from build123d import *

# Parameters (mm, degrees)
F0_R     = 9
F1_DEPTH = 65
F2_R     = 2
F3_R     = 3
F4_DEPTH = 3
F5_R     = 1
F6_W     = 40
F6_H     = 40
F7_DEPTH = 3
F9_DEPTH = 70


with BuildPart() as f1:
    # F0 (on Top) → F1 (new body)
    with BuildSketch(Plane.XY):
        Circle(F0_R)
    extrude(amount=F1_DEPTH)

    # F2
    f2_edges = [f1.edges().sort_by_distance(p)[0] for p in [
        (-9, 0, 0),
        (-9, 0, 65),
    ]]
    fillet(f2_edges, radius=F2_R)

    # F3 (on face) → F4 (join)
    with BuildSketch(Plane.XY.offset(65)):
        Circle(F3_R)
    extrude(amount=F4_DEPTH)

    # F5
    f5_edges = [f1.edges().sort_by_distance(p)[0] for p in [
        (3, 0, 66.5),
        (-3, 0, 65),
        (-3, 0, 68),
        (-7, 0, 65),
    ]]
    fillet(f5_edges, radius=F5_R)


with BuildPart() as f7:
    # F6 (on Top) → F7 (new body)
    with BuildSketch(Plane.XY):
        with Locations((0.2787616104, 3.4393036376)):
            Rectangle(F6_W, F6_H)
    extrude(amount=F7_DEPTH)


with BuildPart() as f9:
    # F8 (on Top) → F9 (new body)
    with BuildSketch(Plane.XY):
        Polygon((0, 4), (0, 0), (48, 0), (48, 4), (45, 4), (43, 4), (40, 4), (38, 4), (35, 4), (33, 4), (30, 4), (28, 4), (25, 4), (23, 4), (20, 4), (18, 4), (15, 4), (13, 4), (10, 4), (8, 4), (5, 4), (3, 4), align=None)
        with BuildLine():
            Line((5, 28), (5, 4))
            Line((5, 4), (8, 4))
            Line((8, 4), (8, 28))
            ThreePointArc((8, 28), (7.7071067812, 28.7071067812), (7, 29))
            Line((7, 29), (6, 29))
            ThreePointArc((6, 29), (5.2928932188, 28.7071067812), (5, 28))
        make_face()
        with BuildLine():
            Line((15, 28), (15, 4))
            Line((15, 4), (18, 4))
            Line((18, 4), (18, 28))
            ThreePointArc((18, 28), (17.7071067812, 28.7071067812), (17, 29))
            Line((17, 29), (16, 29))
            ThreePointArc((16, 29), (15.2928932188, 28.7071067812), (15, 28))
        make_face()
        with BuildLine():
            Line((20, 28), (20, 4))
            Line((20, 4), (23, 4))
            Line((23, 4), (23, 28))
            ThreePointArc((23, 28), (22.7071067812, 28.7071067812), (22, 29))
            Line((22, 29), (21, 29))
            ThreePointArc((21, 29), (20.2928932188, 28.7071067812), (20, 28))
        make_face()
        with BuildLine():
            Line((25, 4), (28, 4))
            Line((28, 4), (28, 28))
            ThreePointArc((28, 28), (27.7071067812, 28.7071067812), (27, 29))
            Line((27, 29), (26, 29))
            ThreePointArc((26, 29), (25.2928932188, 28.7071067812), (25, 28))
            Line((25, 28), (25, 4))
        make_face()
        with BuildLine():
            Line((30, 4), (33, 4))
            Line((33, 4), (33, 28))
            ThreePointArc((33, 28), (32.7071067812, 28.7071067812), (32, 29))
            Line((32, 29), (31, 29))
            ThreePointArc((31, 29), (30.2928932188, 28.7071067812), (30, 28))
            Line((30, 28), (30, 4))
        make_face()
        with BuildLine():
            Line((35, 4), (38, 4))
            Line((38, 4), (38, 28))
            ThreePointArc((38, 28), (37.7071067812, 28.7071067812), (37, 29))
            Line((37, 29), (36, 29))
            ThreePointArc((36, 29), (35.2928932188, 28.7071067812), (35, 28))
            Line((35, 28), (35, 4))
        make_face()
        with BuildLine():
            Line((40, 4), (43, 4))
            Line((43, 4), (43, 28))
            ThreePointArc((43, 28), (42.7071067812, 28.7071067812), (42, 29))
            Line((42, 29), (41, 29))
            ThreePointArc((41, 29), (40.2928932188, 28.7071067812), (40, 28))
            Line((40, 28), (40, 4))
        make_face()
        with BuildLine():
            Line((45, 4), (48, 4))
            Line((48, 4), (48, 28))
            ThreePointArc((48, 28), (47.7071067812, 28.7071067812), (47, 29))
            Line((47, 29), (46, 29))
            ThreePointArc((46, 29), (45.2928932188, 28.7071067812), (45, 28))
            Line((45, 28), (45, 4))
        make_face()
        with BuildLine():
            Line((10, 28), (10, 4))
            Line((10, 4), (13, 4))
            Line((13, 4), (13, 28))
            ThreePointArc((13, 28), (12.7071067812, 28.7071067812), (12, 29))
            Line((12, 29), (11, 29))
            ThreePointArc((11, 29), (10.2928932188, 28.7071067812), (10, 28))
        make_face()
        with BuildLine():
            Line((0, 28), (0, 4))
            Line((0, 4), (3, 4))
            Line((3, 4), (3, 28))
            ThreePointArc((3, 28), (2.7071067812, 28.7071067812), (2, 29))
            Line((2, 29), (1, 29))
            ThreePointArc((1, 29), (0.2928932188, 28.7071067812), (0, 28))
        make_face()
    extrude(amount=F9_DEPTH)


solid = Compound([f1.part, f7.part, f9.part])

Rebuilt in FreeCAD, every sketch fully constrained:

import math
import FreeCAD as App
import Part
import Sketcher

V = App.Vector
Q = App.Units.Quantity


def edges_at(feature, points):
    """Names of the edges that pass closest to the given points."""
    edges = feature.Shape.Edges
    near = lambda p: min(range(len(edges)), key=lambda i: edges[i].distToShape(Part.Vertex(*p))[0])
    return sorted({f"Edge{near(p) + 1}" for p in points})

doc = App.newDocument("Part")
body = doc.addObject("PartDesign::Body", "Body")

# Sketch on XY plane
sketch1 = body.newObject("Sketcher::SketchObject", "Sketch")
sketch1.AttachmentSupport = (doc.getObject("XY_Plane"), [""])
sketch1.MapMode = "FlatFace"
sketch1.addGeometry(Part.Circle(V(0, 0, 0), V(0, 0, 1), 9), False)
sketch1.addConstraint(Sketcher.Constraint("Coincident", 0, 3, -1, 1))
sketch1.addConstraint(Sketcher.Constraint("Diameter", 0, Q("18 mm")))
pad1 = body.newObject("PartDesign::Pad", "Pad")
pad1.Profile = sketch1
pad1.Length = 65
doc.recompute()

fillet = body.newObject("PartDesign::Fillet", "Fillet")
fillet.Base = (pad1, edges_at(pad1, [(-9, 0, 0), (-9, 0, 65)]))
fillet.Radius = 2

# Sketch on XY plane
sketch2 = body.newObject("Sketcher::SketchObject", "Sketch001")
sketch2.AttachmentSupport = (doc.getObject("XY_Plane"), [""])
sketch2.MapMode = "FlatFace"
sketch2.AttachmentOffset = App.Placement(V(0, 0, 65), App.Rotation())
sketch2.addGeometry(Part.Circle(V(0, 0, 0), V(0, 0, 1), 3), False)
sketch2.addConstraint(Sketcher.Constraint("Coincident", 0, 3, -1, 1))
sketch2.addConstraint(Sketcher.Constraint("Diameter", 0, Q("6 mm")))
pad2 = body.newObject("PartDesign::Pad", "Pad001")
pad2.Profile = sketch2
pad2.Length = 3
doc.recompute()

fillet2 = body.newObject("PartDesign::Fillet", "Fillet001")
fillet2.Base = (pad2, edges_at(pad2, [
    (3, 0, 66.5),
    (-3, 0, 65),
    (-3, 0, 68),
    (-7, 0, 65),
]))
fillet2.Radius = 1
body2 = doc.addObject("PartDesign::Body", "Body001")

# Sketch on XY plane
sketch3 = body2.newObject("Sketcher::SketchObject", "Sketch002")
sketch3.AttachmentSupport = (doc.getObject("XY_Plane001"), [""])
sketch3.MapMode = "FlatFace"
sketch3.addGeometry(Part.LineSegment(V(-19.721238, 23.439304, 0), V(-19.721238, -16.560696, 0)), False)
sketch3.addGeometry(Part.LineSegment(V(-19.721238, -16.560696, 0), V(20.278762, -16.560696, 0)), False)
sketch3.addGeometry(Part.LineSegment(V(20.278762, -16.560696, 0), V(20.278762, 23.439304, 0)), False)
sketch3.addGeometry(Part.LineSegment(V(20.278762, 23.439304, 0), V(-19.721238, 23.439304, 0)), False)
sketch3.addConstraint(Sketcher.Constraint("Coincident", 0, 2, 1, 1))
sketch3.addConstraint(Sketcher.Constraint("Coincident", 1, 2, 2, 1))
sketch3.addConstraint(Sketcher.Constraint("Coincident", 2, 2, 3, 1))
sketch3.addConstraint(Sketcher.Constraint("Coincident", 3, 2, 0, 1))
sketch3.addConstraint(Sketcher.Constraint("Vertical", 0))
sketch3.addConstraint(Sketcher.Constraint("Horizontal", 1))
sketch3.addConstraint(Sketcher.Constraint("Vertical", 2))
sketch3.addConstraint(Sketcher.Constraint("Horizontal", 3))
sketch3.addConstraint(Sketcher.Constraint("Equal", 3, 0))
sketch3.addConstraint(Sketcher.Constraint("DistanceX", 1, 1, 1, 2, Q("40 mm")))
sketch3.addConstraint(Sketcher.Constraint("DistanceX", 0, 2, -1, 1, Q("19.721238 mm")))
sketch3.addConstraint(Sketcher.Constraint("DistanceY", 0, 2, -1, 1, Q("16.560696 mm")))
pad3 = body2.newObject("PartDesign::Pad", "Pad002")
pad3.Profile = sketch3
pad3.Length = 3
body3 = doc.addObject("PartDesign::Body", "Body002")

# Sketch on XY plane
sketch4 = body3.newObject("Sketcher::SketchObject", "Sketch003")
sketch4.AttachmentSupport = (doc.getObject("XY_Plane002"), [""])
sketch4.MapMode = "FlatFace"
sketch4.addGeometry(Part.LineSegment(V(0, 0, 0), V(48, 0, 0)), False)
sketch4.addGeometry(Part.LineSegment(V(48, 0, 0), V(48, 28, 0)), False)
sketch4.addGeometry(Part.ArcOfCircle(Part.Circle(V(47, 28, 0), V(0, 0, 1), 1), math.radians(0), math.radians(90)), False)
sketch4.addGeometry(Part.LineSegment(V(47, 29, 0), V(46, 29, 0)), False)
sketch4.addGeometry(Part.ArcOfCircle(Part.Circle(V(46, 28, 0), V(0, 0, 1), 1), math.radians(90), math.radians(180)), False)
sketch4.addGeometry(Part.LineSegment(V(45, 28, 0), V(45, 4, 0)), False)
sketch4.addGeometry(Part.LineSegment(V(45, 4, 0), V(43, 4, 0)), False)
sketch4.addGeometry(Part.LineSegment(V(43, 4, 0), V(43, 28, 0)), False)
sketch4.addGeometry(Part.ArcOfCircle(Part.Circle(V(42, 28, 0), V(0, 0, 1), 1), math.radians(0), math.radians(90)), False)
sketch4.addGeometry(Part.LineSegment(V(42, 29, 0), V(41, 29, 0)), False)
sketch4.addGeometry(Part.ArcOfCircle(Part.Circle(V(41, 28, 0), V(0, 0, 1), 1), math.radians(90), math.radians(180)), False)
sketch4.addGeometry(Part.LineSegment(V(40, 28, 0), V(40, 4, 0)), False)
sketch4.addGeometry(Part.LineSegment(V(40, 4, 0), V(38, 4, 0)), False)
sketch4.addGeometry(Part.LineSegment(V(38, 4, 0), V(38, 28, 0)), False)
sketch4.addGeometry(Part.ArcOfCircle(Part.Circle(V(37, 28, 0), V(0, 0, 1), 1), math.radians(0), math.radians(90)), False)
sketch4.addGeometry(Part.LineSegment(V(37, 29, 0), V(36, 29, 0)), False)
sketch4.addGeometry(Part.ArcOfCircle(Part.Circle(V(36, 28, 0), V(0, 0, 1), 1), math.radians(90), math.radians(180)), False)
sketch4.addGeometry(Part.LineSegment(V(35, 28, 0), V(35, 4, 0)), False)
sketch4.addGeometry(Part.LineSegment(V(35, 4, 0), V(33, 4, 0)), False)
sketch4.addGeometry(Part.LineSegment(V(33, 4, 0), V(33, 28, 0)), False)
sketch4.addGeometry(Part.ArcOfCircle(Part.Circle(V(32, 28, 0), V(0, 0, 1), 1), math.radians(0), math.radians(90)), False)
sketch4.addGeometry(Part.LineSegment(V(32, 29, 0), V(31, 29, 0)), False)
sketch4.addGeometry(Part.ArcOfCircle(Part.Circle(V(31, 28, 0), V(0, 0, 1), 1), math.radians(90), math.radians(180)), False)
sketch4.addGeometry(Part.LineSegment(V(30, 28, 0), V(30, 4, 0)), False)
sketch4.addGeometry(Part.LineSegment(V(30, 4, 0), V(28, 4, 0)), False)
sketch4.addGeometry(Part.LineSegment(V(28, 4, 0), V(28, 28, 0)), False)
sketch4.addGeometry(Part.ArcOfCircle(Part.Circle(V(27, 28, 0), V(0, 0, 1), 1), math.radians(0), math.radians(90)), False)
sketch4.addGeometry(Part.LineSegment(V(27, 29, 0), V(26, 29, 0)), False)
sketch4.addGeometry(Part.ArcOfCircle(Part.Circle(V(26, 28, 0), V(0, 0, 1), 1), math.radians(90), math.radians(180)), False)
sketch4.addGeometry(Part.LineSegment(V(25, 28, 0), V(25, 4, 0)), False)
sketch4.addGeometry(Part.LineSegment(V(25, 4, 0), V(23, 4, 0)), False)
sketch4.addGeometry(Part.LineSegment(V(23, 4, 0), V(23, 28, 0)), False)
sketch4.addGeometry(Part.ArcOfCircle(Part.Circle(V(22, 28, 0), V(0, 0, 1), 1), math.radians(0), math.radians(90)), False)
sketch4.addGeometry(Part.LineSegment(V(22, 29, 0), V(21, 29, 0)), False)
sketch4.addGeometry(Part.ArcOfCircle(Part.Circle(V(21, 28, 0), V(0, 0, 1), 1), math.radians(90), math.radians(180)), False)
sketch4.addGeometry(Part.LineSegment(V(20, 28, 0), V(20, 4, 0)), False)
sketch4.addGeometry(Part.LineSegment(V(20, 4, 0), V(18, 4, 0)), False)
sketch4.addGeometry(Part.LineSegment(V(18, 4, 0), V(18, 28, 0)), False)
sketch4.addGeometry(Part.ArcOfCircle(Part.Circle(V(17, 28, 0), V(0, 0, 1), 1), math.radians(0), math.radians(90)), False)
sketch4.addGeometry(Part.LineSegment(V(17, 29, 0), V(16, 29, 0)), False)
sketch4.addGeometry(Part.ArcOfCircle(Part.Circle(V(16, 28, 0), V(0, 0, 1), 1), math.radians(90), math.radians(180)), False)
sketch4.addGeometry(Part.LineSegment(V(15, 28, 0), V(15, 4, 0)), False)
sketch4.addGeometry(Part.LineSegment(V(15, 4, 0), V(13, 4, 0)), False)
sketch4.addGeometry(Part.LineSegment(V(13, 4, 0), V(13, 28, 0)), False)
sketch4.addGeometry(Part.ArcOfCircle(Part.Circle(V(12, 28, 0), V(0, 0, 1), 1), math.radians(0), math.radians(90)), False)
sketch4.addGeometry(Part.LineSegment(V(12, 29, 0), V(11, 29, 0)), False)
sketch4.addGeometry(Part.ArcOfCircle(Part.Circle(V(11, 28, 0), V(0, 0, 1), 1), math.radians(90), math.radians(180)), False)
sketch4.addGeometry(Part.LineSegment(V(10, 28, 0), V(10, 4, 0)), False)
sketch4.addGeometry(Part.LineSegment(V(10, 4, 0), V(8, 4, 0)), False)
sketch4.addGeometry(Part.LineSegment(V(8, 4, 0), V(8, 28, 0)), False)
sketch4.addGeometry(Part.ArcOfCircle(Part.Circle(V(7, 28, 0), V(0, 0, 1), 1), math.radians(0), math.radians(90)), False)
sketch4.addGeometry(Part.LineSegment(V(7, 29, 0), V(6, 29, 0)), False)
sketch4.addGeometry(Part.ArcOfCircle(Part.Circle(V(6, 28, 0), V(0, 0, 1), 1), math.radians(90), math.radians(180)), False)
sketch4.addGeometry(Part.LineSegment(V(5, 28, 0), V(5, 4, 0)), False)
sketch4.addGeometry(Part.LineSegment(V(5, 4, 0), V(3, 4, 0)), False)
sketch4.addGeometry(Part.LineSegment(V(3, 4, 0), V(3, 28, 0)), False)
sketch4.addGeometry(Part.ArcOfCircle(Part.Circle(V(2, 28, 0), V(0, 0, 1), 1), math.radians(0), math.radians(90)), False)
sketch4.addGeometry(Part.LineSegment(V(2, 29, 0), V(1, 29, 0)), False)
sketch4.addGeometry(Part.ArcOfCircle(Part.Circle(V(1, 28, 0), V(0, 0, 1), 1), math.radians(90), math.radians(180)), False)
sketch4.addGeometry(Part.LineSegment(V(0, 28, 0), V(0, 0, 0)), False)
sketch4.addConstraint(Sketcher.Constraint("Coincident", 0, 2, 1, 1))
sketch4.addConstraint(Sketcher.Constraint("Tangent", 1, 2, 2, 1))
sketch4.addConstraint(Sketcher.Constraint("Tangent", 2, 2, 3, 1))
sketch4.addConstraint(Sketcher.Constraint("Tangent", 3, 2, 4, 1))
sketch4.addConstraint(Sketcher.Constraint("Tangent", 4, 2, 5, 1))
sketch4.addConstraint(Sketcher.Constraint("Coincident", 5, 2, 6, 1))
sketch4.addConstraint(Sketcher.Constraint("Coincident", 6, 2, 7, 1))
sketch4.addConstraint(Sketcher.Constraint("Tangent", 7, 2, 8, 1))
sketch4.addConstraint(Sketcher.Constraint("Tangent", 8, 2, 9, 1))
sketch4.addConstraint(Sketcher.Constraint("Tangent", 9, 2, 10, 1))
sketch4.addConstraint(Sketcher.Constraint("Tangent", 10, 2, 11, 1))
sketch4.addConstraint(Sketcher.Constraint("Coincident", 11, 2, 12, 1))
sketch4.addConstraint(Sketcher.Constraint("Coincident", 12, 2, 13, 1))
sketch4.addConstraint(Sketcher.Constraint("Tangent", 13, 2, 14, 1))
sketch4.addConstraint(Sketcher.Constraint("Tangent", 14, 2, 15, 1))
sketch4.addConstraint(Sketcher.Constraint("Tangent", 15, 2, 16, 1))
sketch4.addConstraint(Sketcher.Constraint("Tangent", 16, 2, 17, 1))
sketch4.addConstraint(Sketcher.Constraint("Coincident", 17, 2, 18, 1))
sketch4.addConstraint(Sketcher.Constraint("Coincident", 18, 2, 19, 1))
sketch4.addConstraint(Sketcher.Constraint("Tangent", 19, 2, 20, 1))
sketch4.addConstraint(Sketcher.Constraint("Tangent", 20, 2, 21, 1))
sketch4.addConstraint(Sketcher.Constraint("Tangent", 21, 2, 22, 1))
sketch4.addConstraint(Sketcher.Constraint("Tangent", 22, 2, 23, 1))
sketch4.addConstraint(Sketcher.Constraint("Coincident", 23, 2, 24, 1))
sketch4.addConstraint(Sketcher.Constraint("Coincident", 24, 2, 25, 1))
sketch4.addConstraint(Sketcher.Constraint("Tangent", 25, 2, 26, 1))
sketch4.addConstraint(Sketcher.Constraint("Tangent", 26, 2, 27, 1))
sketch4.addConstraint(Sketcher.Constraint("Tangent", 27, 2, 28, 1))
sketch4.addConstraint(Sketcher.Constraint("Tangent", 28, 2, 29, 1))
sketch4.addConstraint(Sketcher.Constraint("Coincident", 29, 2, 30, 1))
sketch4.addConstraint(Sketcher.Constraint("Coincident", 30, 2, 31, 1))
sketch4.addConstraint(Sketcher.Constraint("Tangent", 31, 2, 32, 1))
sketch4.addConstraint(Sketcher.Constraint("Tangent", 32, 2, 33, 1))
sketch4.addConstraint(Sketcher.Constraint("Tangent", 33, 2, 34, 1))
sketch4.addConstraint(Sketcher.Constraint("Tangent", 34, 2, 35, 1))
sketch4.addConstraint(Sketcher.Constraint("Coincident", 35, 2, 36, 1))
sketch4.addConstraint(Sketcher.Constraint("Coincident", 36, 2, 37, 1))
sketch4.addConstraint(Sketcher.Constraint("Tangent", 37, 2, 38, 1))
sketch4.addConstraint(Sketcher.Constraint("Tangent", 38, 2, 39, 1))
sketch4.addConstraint(Sketcher.Constraint("Tangent", 39, 2, 40, 1))
sketch4.addConstraint(Sketcher.Constraint("Tangent", 40, 2, 41, 1))
sketch4.addConstraint(Sketcher.Constraint("Coincident", 41, 2, 42, 1))
sketch4.addConstraint(Sketcher.Constraint("Coincident", 42, 2, 43, 1))
sketch4.addConstraint(Sketcher.Constraint("Tangent", 43, 2, 44, 1))
sketch4.addConstraint(Sketcher.Constraint("Tangent", 44, 2, 45, 1))
sketch4.addConstraint(Sketcher.Constraint("Tangent", 45, 2, 46, 1))
sketch4.addConstraint(Sketcher.Constraint("Tangent", 46, 2, 47, 1))
sketch4.addConstraint(Sketcher.Constraint("Coincident", 47, 2, 48, 1))
sketch4.addConstraint(Sketcher.Constraint("Coincident", 48, 2, 49, 1))
sketch4.addConstraint(Sketcher.Constraint("Tangent", 49, 2, 50, 1))
sketch4.addConstraint(Sketcher.Constraint("Tangent", 50, 2, 51, 1))
sketch4.addConstraint(Sketcher.Constraint("Tangent", 51, 2, 52, 1))
sketch4.addConstraint(Sketcher.Constraint("Tangent", 52, 2, 53, 1))
sketch4.addConstraint(Sketcher.Constraint("Coincident", 53, 2, 54, 1))
sketch4.addConstraint(Sketcher.Constraint("Coincident", 54, 2, 55, 1))
sketch4.addConstraint(Sketcher.Constraint("Tangent", 55, 2, 56, 1))
sketch4.addConstraint(Sketcher.Constraint("Tangent", 56, 2, 57, 1))
sketch4.addConstraint(Sketcher.Constraint("Tangent", 57, 2, 58, 1))
sketch4.addConstraint(Sketcher.Constraint("Tangent", 58, 2, 59, 1))
sketch4.addConstraint(Sketcher.Constraint("Coincident", 59, 2, 0, 1))
sketch4.addConstraint(Sketcher.Constraint("Horizontal", 0))
sketch4.addConstraint(Sketcher.Constraint("Vertical", 1))
sketch4.addConstraint(Sketcher.Constraint("Horizontal", 3))
sketch4.addConstraint(Sketcher.Constraint("Vertical", 5))
sketch4.addConstraint(Sketcher.Constraint("Horizontal", 6))
sketch4.addConstraint(Sketcher.Constraint("Vertical", 7))
sketch4.addConstraint(Sketcher.Constraint("Horizontal", 9))
sketch4.addConstraint(Sketcher.Constraint("Vertical", 11))
sketch4.addConstraint(Sketcher.Constraint("Horizontal", 12))
sketch4.addConstraint(Sketcher.Constraint("Vertical", 13))
sketch4.addConstraint(Sketcher.Constraint("Horizontal", 15))
sketch4.addConstraint(Sketcher.Constraint("Vertical", 17))
sketch4.addConstraint(Sketcher.Constraint("Horizontal", 18))
sketch4.addConstraint(Sketcher.Constraint("Vertical", 19))
sketch4.addConstraint(Sketcher.Constraint("Horizontal", 21))
sketch4.addConstraint(Sketcher.Constraint("Vertical", 23))
sketch4.addConstraint(Sketcher.Constraint("Horizontal", 24))
sketch4.addConstraint(Sketcher.Constraint("Vertical", 25))
sketch4.addConstraint(Sketcher.Constraint("Horizontal", 27))
sketch4.addConstraint(Sketcher.Constraint("Vertical", 29))
sketch4.addConstraint(Sketcher.Constraint("Horizontal", 30))
sketch4.addConstraint(Sketcher.Constraint("Vertical", 31))
sketch4.addConstraint(Sketcher.Constraint("Horizontal", 33))
sketch4.addConstraint(Sketcher.Constraint("Vertical", 35))
sketch4.addConstraint(Sketcher.Constraint("Horizontal", 36))
sketch4.addConstraint(Sketcher.Constraint("Vertical", 37))
sketch4.addConstraint(Sketcher.Constraint("Horizontal", 39))
sketch4.addConstraint(Sketcher.Constraint("Vertical", 41))
sketch4.addConstraint(Sketcher.Constraint("Horizontal", 42))
sketch4.addConstraint(Sketcher.Constraint("Vertical", 43))
sketch4.addConstraint(Sketcher.Constraint("Horizontal", 45))
sketch4.addConstraint(Sketcher.Constraint("Vertical", 47))
sketch4.addConstraint(Sketcher.Constraint("Horizontal", 48))
sketch4.addConstraint(Sketcher.Constraint("Vertical", 49))
sketch4.addConstraint(Sketcher.Constraint("Horizontal", 51))
sketch4.addConstraint(Sketcher.Constraint("Vertical", 53))
sketch4.addConstraint(Sketcher.Constraint("Horizontal", 54))
sketch4.addConstraint(Sketcher.Constraint("Vertical", 55))
sketch4.addConstraint(Sketcher.Constraint("Horizontal", 57))
sketch4.addConstraint(Sketcher.Constraint("Vertical", 59))
sketch4.addConstraint(Sketcher.Constraint("Coincident", 59, 2, -1, 1))
sketch4.addConstraint(Sketcher.Constraint("Equal", 2, 4))
sketch4.addConstraint(Sketcher.Constraint("Equal", 4, 8))
sketch4.addConstraint(Sketcher.Constraint("Equal", 8, 10))
sketch4.addConstraint(Sketcher.Constraint("Equal", 10, 14))
sketch4.addConstraint(Sketcher.Constraint("Equal", 14, 16))
sketch4.addConstraint(Sketcher.Constraint("Equal", 16, 20))
sketch4.addConstraint(Sketcher.Constraint("Equal", 20, 22))
sketch4.addConstraint(Sketcher.Constraint("Equal", 22, 26))
sketch4.addConstraint(Sketcher.Constraint("Equal", 26, 28))
sketch4.addConstraint(Sketcher.Constraint("Equal", 28, 32))
sketch4.addConstraint(Sketcher.Constraint("Equal", 32, 34))
sketch4.addConstraint(Sketcher.Constraint("Equal", 34, 38))
sketch4.addConstraint(Sketcher.Constraint("Equal", 38, 40))
sketch4.addConstraint(Sketcher.Constraint("Equal", 40, 44))
sketch4.addConstraint(Sketcher.Constraint("Equal", 44, 46))
sketch4.addConstraint(Sketcher.Constraint("Equal", 46, 50))
sketch4.addConstraint(Sketcher.Constraint("Equal", 50, 52))
sketch4.addConstraint(Sketcher.Constraint("Equal", 52, 56))
sketch4.addConstraint(Sketcher.Constraint("Equal", 56, 58))
sketch4.addConstraint(Sketcher.Constraint("Horizontal", 4, 3, 8, 3))
sketch4.addConstraint(Sketcher.Constraint("Horizontal", 10, 3, 14, 3))
sketch4.addConstraint(Sketcher.Constraint("Horizontal", 16, 3, 20, 3))
sketch4.addConstraint(Sketcher.Constraint("Horizontal", 22, 3, 26, 3))
sketch4.addConstraint(Sketcher.Constraint("Horizontal", 28, 3, 32, 3))
sketch4.addConstraint(Sketcher.Constraint("Horizontal", 34, 3, 38, 3))
sketch4.addConstraint(Sketcher.Constraint("Horizontal", 40, 3, 44, 3))
sketch4.addConstraint(Sketcher.Constraint("Horizontal", 46, 3, 50, 3))
sketch4.addConstraint(Sketcher.Constraint("Horizontal", 52, 3, 56, 3))
sketch4.addConstraint(Sketcher.Constraint("Horizontal", 6, 2, 11, 2))
sketch4.addConstraint(Sketcher.Constraint("Horizontal", 12, 2, 17, 2))
sketch4.addConstraint(Sketcher.Constraint("Horizontal", 18, 2, 23, 2))
sketch4.addConstraint(Sketcher.Constraint("Horizontal", 24, 2, 29, 2))
sketch4.addConstraint(Sketcher.Constraint("Horizontal", 30, 2, 35, 2))
sketch4.addConstraint(Sketcher.Constraint("Horizontal", 36, 2, 41, 2))
sketch4.addConstraint(Sketcher.Constraint("Horizontal", 42, 2, 47, 2))
sketch4.addConstraint(Sketcher.Constraint("Horizontal", 48, 2, 53, 2))
sketch4.addConstraint(Sketcher.Constraint("Equal", 3, 9))
sketch4.addConstraint(Sketcher.Constraint("Equal", 6, 12))
sketch4.addConstraint(Sketcher.Constraint("Equal", 9, 15))
sketch4.addConstraint(Sketcher.Constraint("Equal", 12, 18))
sketch4.addConstraint(Sketcher.Constraint("Equal", 15, 21))
sketch4.addConstraint(Sketcher.Constraint("Equal", 18, 24))
sketch4.addConstraint(Sketcher.Constraint("Equal", 21, 27))
sketch4.addConstraint(Sketcher.Constraint("Equal", 24, 30))
sketch4.addConstraint(Sketcher.Constraint("Equal", 27, 33))
sketch4.addConstraint(Sketcher.Constraint("Equal", 30, 36))
sketch4.addConstraint(Sketcher.Constraint("Equal", 33, 39))
sketch4.addConstraint(Sketcher.Constraint("Equal", 36, 42))
sketch4.addConstraint(Sketcher.Constraint("Equal", 39, 45))
sketch4.addConstraint(Sketcher.Constraint("Equal", 42, 48))
sketch4.addConstraint(Sketcher.Constraint("Equal", 45, 51))
sketch4.addConstraint(Sketcher.Constraint("Equal", 48, 54))
sketch4.addConstraint(Sketcher.Constraint("Equal", 51, 57))
sketch4.addConstraint(Sketcher.Constraint("Radius", 2, Q("1 mm")))
sketch4.addConstraint(Sketcher.Constraint("DistanceX", 0, 1, 0, 2, Q("48 mm")))
sketch4.addConstraint(Sketcher.Constraint("DistanceX", 3, 2, 3, 1, Q("1 mm")))
sketch4.addConstraint(Sketcher.Constraint("DistanceY", 1, 1, 1, 2, Q("28 mm")))
sketch4.addConstraint(Sketcher.Constraint("DistanceY", 5, 2, 5, 1, Q("24 mm")))
pad4 = body3.newObject("PartDesign::Pad", "Pad003")
pad4.Profile = sketch4
pad4.Length = 70

doc.recompute()
